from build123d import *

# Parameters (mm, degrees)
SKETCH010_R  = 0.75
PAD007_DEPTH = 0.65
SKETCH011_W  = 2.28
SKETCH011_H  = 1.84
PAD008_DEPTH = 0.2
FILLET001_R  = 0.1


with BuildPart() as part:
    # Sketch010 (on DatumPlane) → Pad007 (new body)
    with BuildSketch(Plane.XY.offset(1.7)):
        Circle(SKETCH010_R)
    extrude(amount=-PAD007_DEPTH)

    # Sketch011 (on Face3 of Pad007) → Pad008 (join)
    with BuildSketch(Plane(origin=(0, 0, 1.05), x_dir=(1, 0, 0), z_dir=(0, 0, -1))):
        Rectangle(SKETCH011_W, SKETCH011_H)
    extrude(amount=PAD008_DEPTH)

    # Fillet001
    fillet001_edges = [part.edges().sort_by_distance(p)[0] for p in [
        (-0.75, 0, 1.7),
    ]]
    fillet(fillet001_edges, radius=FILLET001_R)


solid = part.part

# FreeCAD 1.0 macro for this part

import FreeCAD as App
import Part
import Sketcher


def edges_at(feature, points):
    """Names of the edges that pass closest to the given points."""
    edges = feature.Shape.Edges
    near = lambda p: min(range(len(edges)), key=lambda i: edges[i].distToShape(Part.Vertex(*p))[0])
    return sorted({f"Edge{near(p) + 1}" for p in points})

doc = App.newDocument("Part")
body = doc.addObject("PartDesign::Body", "Body")

sketch1 = body.newObject("Sketcher::SketchObject", "Sketch")
sketch1.AttachmentSupport = (doc.getObject("XY_Plane"), [""])
sketch1.MapMode = "FlatFace"
sketch1.AttachmentOffset = App.Placement(App.Vector(0, 0, 1.7), App.Rotation())
sketch1.addGeometry(Part.Circle(App.Vector(0, 0, 0), App.Vector(0, 0, 1), 0.8), False)
sketch1.addConstraint([
    Sketcher.Constraint("Coincident", 0, 3, -1, 1),
    Sketcher.Constraint("Diameter", 0, 1.5),
])
pad1 = body.newObject("PartDesign::Pad", "Pad")
pad1.Profile = sketch1
pad1.Length = 0.65
pad1.Reversed = True

sketch2 = body.newObject("Sketcher::SketchObject", "Sketch001")
sketch2.AttachmentSupport = (doc.getObject("XY_Plane"), [""])
sketch2.MapMode = "FlatFace"
sketch2.AttachmentOffset = App.Placement(App.Vector(0, 0, 1.05), App.Rotation())
sketch2.addGeometry([
    Part.LineSegment(App.Vector(-1.1, -0.9, 0), App.Vector(-1.1, 0.9, 0)),
    Part.LineSegment(App.Vector(-1.1, 0.9, 0), App.Vector(1.1, 0.9, 0)),
    Part.LineSegment(App.Vector(1.1, 0.9, 0), App.Vector(1.1, -0.9, 0)),
    Part.LineSegment(App.Vector(1.1, -0.9, 0), App.Vector(-1.1, -0.9, 0)),
], False)
sketch2.addConstraint([
    Sketcher.Constraint("Coincident", 0, 2, 1, 1),
    Sketcher.Constraint("Coincident", 1, 2, 2, 1),
    Sketcher.Constraint("Coincident", 2, 2, 3, 1),
    Sketcher.Constraint("Coincident", 3, 2, 0, 1),
    Sketcher.Constraint("Vertical", 0),
    Sketcher.Constraint("Horizontal", 1),
    Sketcher.Constraint("Vertical", 2),
    Sketcher.Constraint("Horizontal", 3),
    Sketcher.Constraint("Symmetric", 0, 2, 2, 2, -1, 1),
    Sketcher.Constraint("DistanceX", 1, 1, 1, 2, 2.28),
    Sketcher.Constraint("DistanceY", 0, 1, 0, 2, 1.84),
])
pad2 = body.newObject("PartDesign::Pad", "Pad001")
pad2.Profile = sketch2
pad2.Length = 0.2
pad2.Reversed = True
doc.recompute()

fillet = body.newObject("PartDesign::Fillet", "Fillet")
fillet.Base = (pad2, edges_at(pad2, [(-0.75, 0, 1.7)]))
fillet.Radius = 0.1

doc.recompute()
